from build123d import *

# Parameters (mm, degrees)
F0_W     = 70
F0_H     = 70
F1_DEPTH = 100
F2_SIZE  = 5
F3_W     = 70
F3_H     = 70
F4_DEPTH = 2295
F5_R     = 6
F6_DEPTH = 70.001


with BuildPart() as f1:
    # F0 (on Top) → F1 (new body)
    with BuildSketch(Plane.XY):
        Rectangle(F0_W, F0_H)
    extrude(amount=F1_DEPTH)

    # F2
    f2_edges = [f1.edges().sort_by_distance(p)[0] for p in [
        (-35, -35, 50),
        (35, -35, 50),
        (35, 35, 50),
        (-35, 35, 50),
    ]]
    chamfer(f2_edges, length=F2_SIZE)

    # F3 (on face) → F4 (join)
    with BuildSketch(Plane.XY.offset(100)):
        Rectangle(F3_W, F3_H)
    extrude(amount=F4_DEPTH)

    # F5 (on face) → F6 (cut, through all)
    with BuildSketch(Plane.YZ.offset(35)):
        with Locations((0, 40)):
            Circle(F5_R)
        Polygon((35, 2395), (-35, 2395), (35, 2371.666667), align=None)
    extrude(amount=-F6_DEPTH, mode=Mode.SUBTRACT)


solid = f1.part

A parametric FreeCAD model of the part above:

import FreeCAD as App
import Part
import Sketcher

V = App.Vector
Q = App.Units.Quantity


def edges_at(feature, points):
    """Names of the edges that pass closest to the given points."""
    edges = feature.Shape.Edges
    near = lambda p: min(range(len(edges)), key=lambda i: edges[i].distToShape(Part.Vertex(*p))[0])
    return sorted({f"Edge{near(p) + 1}" for p in points})


def add_polygon(sketch, points):
    """Adds a closed chain of lines whose ends are joined by coincident constraints."""
    first, n = sketch.GeometryCount, len(points)
    for a, b in zip(points, points[1:] + points[:1]):
        sketch.addGeometry(Part.LineSegment(App.Vector(*a, 0), App.Vector(*b, 0)), False)
    for i in range(n):
        sketch.addConstraint(Sketcher.Constraint("Coincident", first + i, 2, first + (i + 1) % n, 1))

doc = App.newDocument("Part")
params = doc.addObject("Spreadsheet::Sheet", "Params")
for row, (alias, value) in enumerate([
    ("sketch1_width", "70 mm"),
    ("pad1_length", "100 mm"),
    ("chamfer_size", "5 mm"),
    ("sketch2_width", "70 mm"),
    ("pad2_length", "2295 mm"),
    ("sketch3_diameter", "12 mm"),
    ("sketch3_width", "70 mm"),
], start=1):
    params.set(f"A{row}", alias)
    params.set(f"B{row}", "=" + value)
    params.setAlias(f"B{row}", alias)

body = doc.addObject("PartDesign::Body", "Body")

# Sketch on XY plane
sketch1 = doc.addObject("Sketcher::SketchObject", "Sketch")
body.addObject(sketch1)
sketch1.AttachmentSupport = (doc.XY_Plane, [""])
sketch1.MapMode = "FlatFace"
add_polygon(sketch1, [(-35, 35), (-35, -35), (35, -35), (35, 35)])  # lines 0-3
sketch1.addConstraint([
    Sketcher.Constraint("Vertical", 0),
    Sketcher.Constraint("Horizontal", 1),
    Sketcher.Constraint("Vertical", 2),
    Sketcher.Constraint("Horizontal", 3),
    Sketcher.Constraint("Symmetric", 0, 2, 2, 2, -1, 1),
    Sketcher.Constraint("Equal", 3, 0),
    Sketcher.Constraint("DistanceX", 1, 1, 1, 2, Q("70 mm")),
])
sketch1.setExpression("Constraints[10]", "Params.sketch1_width")
pad1 = doc.addObject("PartDesign::Pad", "Pad")
body.addObject(pad1)
pad1.Profile = sketch1
pad1.setExpression("Length", "Params.pad1_length")
doc.recompute()

chamfer = doc.addObject("PartDesign::Chamfer", "Chamfer")
body.addObject(chamfer)
chamfer.Base = (pad1, edges_at(pad1, [
    (-35, -35, 50),
    (35, -35, 50),
    (35, 35, 50),
    (-35, 35, 50),
]))
chamfer.setExpression("Size", "Params.chamfer_size")

# Sketch on XY plane
sketch2 = doc.addObject("Sketcher::SketchObject", "Sketch001")
body.addObject(sketch2)
sketch2.AttachmentSupport = (doc.XY_Plane, [""])
sketch2.MapMode = "FlatFace"
sketch2.AttachmentOffset = App.Placement(V(0, 0, 100), App.Rotation())
add_polygon(sketch2, [(-35, 35), (-35, -35), (35, -35), (35, 35)])  # lines 0-3
sketch2.addConstraint([
    Sketcher.Constraint("Vertical", 0),
    Sketcher.Constraint("Horizontal", 1),
    Sketcher.Constraint("Vertical", 2),
    Sketcher.Constraint("Horizontal", 3),
    Sketcher.Constraint("Symmetric", 0, 2, 2, 2, -1, 1),
    Sketcher.Constraint("Equal", 3, 0),
    Sketcher.Constraint("DistanceX", 1, 1, 1, 2, Q("70 mm")),
])
sketch2.setExpression("Constraints[10]", "Params.sketch2_width")
pad2 = doc.addObject("PartDesign::Pad", "Pad001")
body.addObject(pad2)
pad2.Profile = sketch2
pad2.setExpression("Length", "Params.pad2_length")

# Sketch on YZ plane
sketch3 = doc.addObject("Sketcher::SketchObject", "Sketch002")
body.addObject(sketch3)
sketch3.AttachmentSupport = (doc.YZ_Plane, [""])
sketch3.MapMode = "FlatFace"
sketch3.AttachmentOffset = App.Placement(V(0, 0, 35), App.Rotation())
sketch3.addGeometry(Part.Circle(V(0, 40, 0), V(0, 0, 1), 6), False)  # 0
add_polygon(sketch3, [(35, 2395), (-35, 2395), (35, 2372)])  # lines 1-3
sketch3.addConstraint([
    Sketcher.Constraint("Horizontal", 1),
    Sketcher.Constraint("Vertical", 3),
    Sketcher.Constraint("PointOnObject", 0, 3, -2),
    Sketcher.Constraint("Diameter", 0, Q("12 mm")),
    Sketcher.Constraint("DistanceX", 1, 2, 1, 1, Q("70 mm")),
    Sketcher.Constraint("DistanceY", -1, 1, 0, 3, Q("40 mm")),
    Sketcher.Constraint("DistanceX", 1, 2, -1, 1, Q("35 mm")),
    Sketcher.Constraint("DistanceY", -1, 1, 1, 2, Q("2395 mm")),
    Sketcher.Constraint("Distance", 2, Q("73.786479 mm")),
])
sketch3.setExpression("Constraints[6]", "Params.sketch3_diameter")
sketch3.setExpression("Constraints[7]", "Params.sketch3_width")
pocket1 = doc.addObject("PartDesign::Pocket", "Pocket")
body.addObject(pocket1)
pocket1.Profile = sketch3
pocket1.Type = "ThroughAll"

doc.recompute()
